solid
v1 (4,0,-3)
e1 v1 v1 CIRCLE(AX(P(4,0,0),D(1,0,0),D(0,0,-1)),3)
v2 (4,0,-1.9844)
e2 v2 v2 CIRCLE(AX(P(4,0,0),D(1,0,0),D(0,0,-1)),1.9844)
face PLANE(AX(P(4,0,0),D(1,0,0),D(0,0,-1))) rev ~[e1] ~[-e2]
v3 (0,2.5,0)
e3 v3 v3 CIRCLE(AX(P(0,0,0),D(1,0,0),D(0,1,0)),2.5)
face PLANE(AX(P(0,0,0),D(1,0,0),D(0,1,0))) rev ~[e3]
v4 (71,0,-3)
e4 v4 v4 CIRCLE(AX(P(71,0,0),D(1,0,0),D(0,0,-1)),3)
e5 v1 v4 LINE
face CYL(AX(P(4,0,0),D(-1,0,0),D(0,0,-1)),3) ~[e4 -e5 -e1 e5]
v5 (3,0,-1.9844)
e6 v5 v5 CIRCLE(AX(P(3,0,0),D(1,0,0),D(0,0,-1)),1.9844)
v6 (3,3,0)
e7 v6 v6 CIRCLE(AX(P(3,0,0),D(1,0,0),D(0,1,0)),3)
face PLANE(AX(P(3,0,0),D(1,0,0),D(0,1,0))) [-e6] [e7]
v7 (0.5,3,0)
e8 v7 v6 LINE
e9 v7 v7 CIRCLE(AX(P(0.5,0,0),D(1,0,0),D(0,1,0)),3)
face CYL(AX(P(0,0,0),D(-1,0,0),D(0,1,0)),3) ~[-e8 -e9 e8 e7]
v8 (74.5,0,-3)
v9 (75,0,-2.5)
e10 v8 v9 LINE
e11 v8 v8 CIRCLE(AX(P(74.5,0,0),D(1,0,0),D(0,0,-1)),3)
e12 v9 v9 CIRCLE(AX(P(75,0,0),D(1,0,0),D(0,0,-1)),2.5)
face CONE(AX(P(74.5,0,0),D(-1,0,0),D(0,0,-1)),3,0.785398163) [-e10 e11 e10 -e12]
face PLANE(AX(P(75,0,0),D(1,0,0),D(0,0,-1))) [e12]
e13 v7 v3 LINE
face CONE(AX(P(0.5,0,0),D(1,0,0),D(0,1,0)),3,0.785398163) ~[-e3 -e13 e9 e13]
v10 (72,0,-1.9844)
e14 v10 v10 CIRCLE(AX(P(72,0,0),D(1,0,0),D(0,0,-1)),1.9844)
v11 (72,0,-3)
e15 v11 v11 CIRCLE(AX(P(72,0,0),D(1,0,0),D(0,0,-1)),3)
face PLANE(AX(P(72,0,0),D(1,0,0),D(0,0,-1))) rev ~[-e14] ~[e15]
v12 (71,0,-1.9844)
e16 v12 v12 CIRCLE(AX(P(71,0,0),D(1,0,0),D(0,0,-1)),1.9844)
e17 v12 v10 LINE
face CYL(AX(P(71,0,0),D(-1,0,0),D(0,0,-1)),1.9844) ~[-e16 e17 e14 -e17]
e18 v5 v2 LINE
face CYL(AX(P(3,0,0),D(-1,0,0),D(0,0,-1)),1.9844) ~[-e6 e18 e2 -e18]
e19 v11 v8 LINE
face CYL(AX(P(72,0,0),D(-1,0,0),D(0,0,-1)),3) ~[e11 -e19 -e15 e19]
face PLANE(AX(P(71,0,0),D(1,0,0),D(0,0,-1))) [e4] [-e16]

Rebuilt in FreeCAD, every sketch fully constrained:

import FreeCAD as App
import Part
import Sketcher
from FreeCAD import Vector


def edges_at(feature, points):
    """Names of the edges that pass closest to the given points."""
    edges = feature.Shape.Edges
    near = lambda p: min(range(len(edges)), key=lambda i: edges[i].distToShape(Part.Vertex(*p))[0])
    return sorted({f"Edge{near(p) + 1}" for p in points})

doc = App.newDocument("Part")
body = doc.addObject("PartDesign::Body", "Body")

sketch1 = body.newObject("Sketcher::SketchObject", "Sketch")
sketch1.AttachmentSupport = (doc.getObject("YZ_Plane"), [""])
sketch1.MapMode = "FlatFace"
sketch1.addGeometry(Part.Circle(Vector(0, 0, 0), Vector(0, 0, 1), 3), False)
sketch1.addConstraint([
    Sketcher.Constraint("Coincident", 0, 3, -1, 1),
    Sketcher.Constraint("Diameter", 0, 6.0),
])
pad1 = body.newObject("PartDesign::Pad", "Pad")
pad1.Profile = sketch1
pad1.Length = 3

sketch2 = body.newObject("Sketcher::SketchObject", "Sketch001")
sketch2.AttachmentSupport = (doc.getObject("YZ_Plane"), [""])
sketch2.MapMode = "FlatFace"
sketch2.AttachmentOffset = App.Placement(Vector(0, 0, 3), App.Rotation())
sketch2.addGeometry(Part.Circle(Vector(0, 0, 0), Vector(0, 0, 1), 1.9844), False)
sketch2.addConstraint([
    Sketcher.Constraint("Coincident", 0, 3, -1, 1),
    Sketcher.Constraint("Diameter", 0, 3.9688),
])
pad2 = body.newObject("PartDesign::Pad", "Pad001")
pad2.Profile = sketch2
pad2.Length = 1

sketch3 = body.newObject("Sketcher::SketchObject", "Sketch002")
sketch3.AttachmentSupport = (doc.getObject("YZ_Plane"), [""])
sketch3.MapMode = "FlatFace"
sketch3.AttachmentOffset = App.Placement(Vector(0, 0, 4), App.Rotation())
sketch3.addGeometry(Part.Circle(Vector(0, 0, 0), Vector(0, 0, 1), 3), False)
sketch3.addConstraint([
    Sketcher.Constraint("Coincident", 0, 3, -1, 1),
    Sketcher.Constraint("Diameter", 0, 6.0),
])
pad3 = body.newObject("PartDesign::Pad", "Pad002")
pad3.Profile = sketch3
pad3.Length = 67

sketch4 = body.newObject("Sketcher::SketchObject", "Sketch003")
sketch4.AttachmentSupport = (doc.getObject("YZ_Plane"), [""])
sketch4.MapMode = "FlatFace"
sketch4.AttachmentOffset = App.Placement(Vector(0, 0, 71), App.Rotation())
sketch4.addGeometry(Part.Circle(Vector(0, 0, 0), Vector(0, 0, 1), 1.9844), False)
sketch4.addConstraint([
    Sketcher.Constraint("Coincident", 0, 3, -1, 1),
    Sketcher.Constraint("Diameter", 0, 3.9688),
])
pad4 = body.newObject("PartDesign::Pad", "Pad003")
pad4.Profile = sketch4
pad4.Length = 1

sketch5 = body.newObject("Sketcher::SketchObject", "Sketch004")
sketch5.AttachmentSupport = (doc.getObject("YZ_Plane"), [""])
sketch5.MapMode = "FlatFace"
sketch5.AttachmentOffset = App.Placement(Vector(0, 0, 72), App.Rotation())
sketch5.addGeometry(Part.Circle(Vector(0, 0, 0), Vector(0, 0, 1), 3), False)
sketch5.addConstraint([
    Sketcher.Constraint("Coincident", 0, 3, -1, 1),
    Sketcher.Constraint("Diameter", 0, 6.0),
])
pad5 = body.newObject("PartDesign::Pad", "Pad004")
pad5.Profile = sketch5
pad5.Length = 3
doc.recompute()

chamfer = body.newObject("PartDesign::Chamfer", "Chamfer")
chamfer.Base = (pad5, edges_at(pad5, [(0, -3, 0), (75, 0, 3)]))
chamfer.Size = 0.5

doc.recompute()
